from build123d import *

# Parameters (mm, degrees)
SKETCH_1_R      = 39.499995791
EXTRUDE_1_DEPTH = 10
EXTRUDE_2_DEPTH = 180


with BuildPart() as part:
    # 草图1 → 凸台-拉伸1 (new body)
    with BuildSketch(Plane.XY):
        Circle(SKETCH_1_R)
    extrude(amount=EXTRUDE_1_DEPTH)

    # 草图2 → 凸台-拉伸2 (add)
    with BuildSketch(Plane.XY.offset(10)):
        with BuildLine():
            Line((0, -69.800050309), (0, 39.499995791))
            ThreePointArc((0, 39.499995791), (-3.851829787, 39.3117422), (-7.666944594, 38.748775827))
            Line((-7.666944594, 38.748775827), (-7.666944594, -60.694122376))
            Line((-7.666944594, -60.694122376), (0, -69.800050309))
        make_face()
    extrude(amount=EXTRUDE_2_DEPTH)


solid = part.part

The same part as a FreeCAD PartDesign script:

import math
import FreeCAD as App
import Part
import Sketcher
Q = App.Units.Quantity

doc = App.newDocument("Part")
params = doc.addObject("Spreadsheet::Sheet", "Params")
for row, (alias, value) in enumerate([
    ("pad1_length", "10 mm"),
    ("pad2_length", "180 mm"),
], start=1):
    params.set(f"A{row}", alias)
    params.set(f"B{row}", "=" + value)
    params.setAlias(f"B{row}", alias)

body = doc.addObject("PartDesign::Body", "Body")

sketch1 = body.newObject("Sketcher::SketchObject", "Sketch")
sketch1.AttachmentSupport = (doc.getObject("XY_Plane"), [""])
sketch1.MapMode = "FlatFace"
sketch1.addGeometry(Part.Circle(App.Vector(0, 0, 0), App.Vector(0, 0, 1), 39), False)
sketch1.addConstraint(Sketcher.Constraint("Coincident", 0, 3, -1, 1))
sketch1.addConstraint(Sketcher.Constraint("Diameter", 0, Q("78.999992 mm")))
pad1 = body.newObject("PartDesign::Pad", "Pad")
pad1.Profile = sketch1
pad1.setExpression("Length", "Params.pad1_length")

sketch2 = body.newObject("Sketcher::SketchObject", "Sketch001")
sketch2.AttachmentSupport = (doc.getObject("XY_Plane"), [""])
sketch2.MapMode = "FlatFace"
sketch2.AttachmentOffset = App.Placement(App.Vector(0, 0, 10), App.Rotation())
sketch2.addGeometry(Part.LineSegment(App.Vector(0, -70, 0), App.Vector(0, 39, 0)), False)
sketch2.addGeometry(Part.ArcOfCircle(Part.Circle(App.Vector(0, 0, 0), App.Vector(0, 0, 1), 39), math.radians(90), math.radians(101.19)), False)
sketch2.addGeometry(Part.LineSegment(App.Vector(-8, 39, 0), App.Vector(-8, -61, 0)), False)
sketch2.addGeometry(Part.LineSegment(App.Vector(-8, -61, 0), App.Vector(0, -70, 0)), False)
sketch2.addConstraint(Sketcher.Constraint("Coincident", 0, 2, 1, 1))
sketch2.addConstraint(Sketcher.Constraint("Coincident", 1, 2, 2, 1))
sketch2.addConstraint(Sketcher.Constraint("Coincident", 2, 2, 3, 1))
sketch2.addConstraint(Sketcher.Constraint("Coincident", 3, 2, 0, 1))
sketch2.addConstraint(Sketcher.Constraint("Vertical", 0))
sketch2.addConstraint(Sketcher.Constraint("Vertical", 2))
sketch2.addConstraint(Sketcher.Constraint("Coincident", 1, 3, -1, 1))
sketch2.addConstraint(Sketcher.Constraint("PointOnObject", 0, 2, -2))
sketch2.addConstraint(Sketcher.Constraint("DistanceY", 2, 2, 2, 1, Q("99.442898 mm")))
sketch2.addConstraint(Sketcher.Constraint("Radius", 1, Q("39.499996 mm")))
sketch2.addConstraint(Sketcher.Constraint("Distance", 3, Q("11.903779 mm")))
sketch2.addConstraint(Sketcher.Constraint("DistanceY", 0, 1, 0, 2, Q("109.300046 mm")))
pad2 = body.newObject("PartDesign::Pad", "Pad001")
pad2.Profile = sketch2
pad2.setExpression("Length", "Params.pad2_length")

doc.recompute()
